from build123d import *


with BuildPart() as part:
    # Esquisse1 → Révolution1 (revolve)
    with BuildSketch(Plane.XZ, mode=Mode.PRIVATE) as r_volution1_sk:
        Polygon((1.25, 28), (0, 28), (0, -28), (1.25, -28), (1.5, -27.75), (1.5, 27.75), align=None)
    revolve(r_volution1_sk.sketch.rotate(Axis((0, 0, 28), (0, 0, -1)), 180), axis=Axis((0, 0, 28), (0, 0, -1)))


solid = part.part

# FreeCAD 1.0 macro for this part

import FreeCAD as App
import Part
import Sketcher

V = App.Vector
Q = App.Units.Quantity


def add_polygon(sketch, points):
    """Adds a closed chain of lines whose ends are joined by coincident constraints."""
    first, n = sketch.GeometryCount, len(points)
    for a, b in zip(points, points[1:] + points[:1]):
        sketch.addGeometry(Part.LineSegment(App.Vector(*a, 0), App.Vector(*b, 0)), False)
    for i in range(n):
        sketch.addConstraint(Sketcher.Constraint("Coincident", first + i, 2, first + (i + 1) % n, 1))

doc = App.newDocument("Part")
params = doc.addObject("Spreadsheet::Sheet", "Params")
for row, (alias, value) in enumerate([
    ("sketch1_height", "56 mm"),
    ("sketch1_height2", "55.5 mm"),
    ("sketch1_width", "1.25 mm"),
    ("revolution_angle", "360 deg"),
], start=1):
    params.set(f"A{row}", alias)
    params.set(f"B{row}", "=" + value)
    params.setAlias(f"B{row}", alias)

body = doc.addObject("PartDesign::Body", "Body")

sketch1 = body.newObject("Sketcher::SketchObject", "Sketch")
sketch1.AttachmentSupport = (doc.getObject("XZ_Plane"), [""])
sketch1.MapMode = "FlatFace"
add_polygon(sketch1, [(1.25, 28), (0, 28), (0, -28), (1.25, -28), (1.5, -27.75), (1.5, 27.75)])
sketch1.addConstraint(Sketcher.Constraint("Horizontal", 0))
sketch1.addConstraint(Sketcher.Constraint("Vertical", 1))
sketch1.addConstraint(Sketcher.Constraint("Horizontal", 2))
sketch1.addConstraint(Sketcher.Constraint("Vertical", 4))
sketch1.addConstraint(Sketcher.Constraint("Symmetric", 0, 2, 1, 2, -1, 1))
sketch1.addConstraint(Sketcher.Constraint("Perpendicular", 3, 5))
sketch1.addConstraint(Sketcher.Constraint("Vertical", 2, 2, 5, 2))
sketch1.addConstraint(Sketcher.Constraint("Equal", 3, 5))
sketch1.addConstraint(Sketcher.Constraint("DistanceY", 1, 2, 1, 1, Q("56 mm")))
sketch1.addConstraint(Sketcher.Constraint("DistanceY", 4, 1, 4, 2, Q("55.5 mm")))
sketch1.addConstraint(Sketcher.Constraint("DistanceX", 0, 2, 0, 1, Q("1.25 mm")))
sketch1.setExpression("Constraints[14]", "Params.sketch1_height")
sketch1.setExpression("Constraints[15]", "Params.sketch1_height2")
sketch1.setExpression("Constraints[16]", "Params.sketch1_width")
revolution = body.newObject("PartDesign::Revolution", "Revolution")
revolution.Profile = sketch1
revolution.ReferenceAxis = (sketch1, ["V_Axis"])
revolution.setExpression("Angle", "Params.revolution_angle")

doc.recompute()
